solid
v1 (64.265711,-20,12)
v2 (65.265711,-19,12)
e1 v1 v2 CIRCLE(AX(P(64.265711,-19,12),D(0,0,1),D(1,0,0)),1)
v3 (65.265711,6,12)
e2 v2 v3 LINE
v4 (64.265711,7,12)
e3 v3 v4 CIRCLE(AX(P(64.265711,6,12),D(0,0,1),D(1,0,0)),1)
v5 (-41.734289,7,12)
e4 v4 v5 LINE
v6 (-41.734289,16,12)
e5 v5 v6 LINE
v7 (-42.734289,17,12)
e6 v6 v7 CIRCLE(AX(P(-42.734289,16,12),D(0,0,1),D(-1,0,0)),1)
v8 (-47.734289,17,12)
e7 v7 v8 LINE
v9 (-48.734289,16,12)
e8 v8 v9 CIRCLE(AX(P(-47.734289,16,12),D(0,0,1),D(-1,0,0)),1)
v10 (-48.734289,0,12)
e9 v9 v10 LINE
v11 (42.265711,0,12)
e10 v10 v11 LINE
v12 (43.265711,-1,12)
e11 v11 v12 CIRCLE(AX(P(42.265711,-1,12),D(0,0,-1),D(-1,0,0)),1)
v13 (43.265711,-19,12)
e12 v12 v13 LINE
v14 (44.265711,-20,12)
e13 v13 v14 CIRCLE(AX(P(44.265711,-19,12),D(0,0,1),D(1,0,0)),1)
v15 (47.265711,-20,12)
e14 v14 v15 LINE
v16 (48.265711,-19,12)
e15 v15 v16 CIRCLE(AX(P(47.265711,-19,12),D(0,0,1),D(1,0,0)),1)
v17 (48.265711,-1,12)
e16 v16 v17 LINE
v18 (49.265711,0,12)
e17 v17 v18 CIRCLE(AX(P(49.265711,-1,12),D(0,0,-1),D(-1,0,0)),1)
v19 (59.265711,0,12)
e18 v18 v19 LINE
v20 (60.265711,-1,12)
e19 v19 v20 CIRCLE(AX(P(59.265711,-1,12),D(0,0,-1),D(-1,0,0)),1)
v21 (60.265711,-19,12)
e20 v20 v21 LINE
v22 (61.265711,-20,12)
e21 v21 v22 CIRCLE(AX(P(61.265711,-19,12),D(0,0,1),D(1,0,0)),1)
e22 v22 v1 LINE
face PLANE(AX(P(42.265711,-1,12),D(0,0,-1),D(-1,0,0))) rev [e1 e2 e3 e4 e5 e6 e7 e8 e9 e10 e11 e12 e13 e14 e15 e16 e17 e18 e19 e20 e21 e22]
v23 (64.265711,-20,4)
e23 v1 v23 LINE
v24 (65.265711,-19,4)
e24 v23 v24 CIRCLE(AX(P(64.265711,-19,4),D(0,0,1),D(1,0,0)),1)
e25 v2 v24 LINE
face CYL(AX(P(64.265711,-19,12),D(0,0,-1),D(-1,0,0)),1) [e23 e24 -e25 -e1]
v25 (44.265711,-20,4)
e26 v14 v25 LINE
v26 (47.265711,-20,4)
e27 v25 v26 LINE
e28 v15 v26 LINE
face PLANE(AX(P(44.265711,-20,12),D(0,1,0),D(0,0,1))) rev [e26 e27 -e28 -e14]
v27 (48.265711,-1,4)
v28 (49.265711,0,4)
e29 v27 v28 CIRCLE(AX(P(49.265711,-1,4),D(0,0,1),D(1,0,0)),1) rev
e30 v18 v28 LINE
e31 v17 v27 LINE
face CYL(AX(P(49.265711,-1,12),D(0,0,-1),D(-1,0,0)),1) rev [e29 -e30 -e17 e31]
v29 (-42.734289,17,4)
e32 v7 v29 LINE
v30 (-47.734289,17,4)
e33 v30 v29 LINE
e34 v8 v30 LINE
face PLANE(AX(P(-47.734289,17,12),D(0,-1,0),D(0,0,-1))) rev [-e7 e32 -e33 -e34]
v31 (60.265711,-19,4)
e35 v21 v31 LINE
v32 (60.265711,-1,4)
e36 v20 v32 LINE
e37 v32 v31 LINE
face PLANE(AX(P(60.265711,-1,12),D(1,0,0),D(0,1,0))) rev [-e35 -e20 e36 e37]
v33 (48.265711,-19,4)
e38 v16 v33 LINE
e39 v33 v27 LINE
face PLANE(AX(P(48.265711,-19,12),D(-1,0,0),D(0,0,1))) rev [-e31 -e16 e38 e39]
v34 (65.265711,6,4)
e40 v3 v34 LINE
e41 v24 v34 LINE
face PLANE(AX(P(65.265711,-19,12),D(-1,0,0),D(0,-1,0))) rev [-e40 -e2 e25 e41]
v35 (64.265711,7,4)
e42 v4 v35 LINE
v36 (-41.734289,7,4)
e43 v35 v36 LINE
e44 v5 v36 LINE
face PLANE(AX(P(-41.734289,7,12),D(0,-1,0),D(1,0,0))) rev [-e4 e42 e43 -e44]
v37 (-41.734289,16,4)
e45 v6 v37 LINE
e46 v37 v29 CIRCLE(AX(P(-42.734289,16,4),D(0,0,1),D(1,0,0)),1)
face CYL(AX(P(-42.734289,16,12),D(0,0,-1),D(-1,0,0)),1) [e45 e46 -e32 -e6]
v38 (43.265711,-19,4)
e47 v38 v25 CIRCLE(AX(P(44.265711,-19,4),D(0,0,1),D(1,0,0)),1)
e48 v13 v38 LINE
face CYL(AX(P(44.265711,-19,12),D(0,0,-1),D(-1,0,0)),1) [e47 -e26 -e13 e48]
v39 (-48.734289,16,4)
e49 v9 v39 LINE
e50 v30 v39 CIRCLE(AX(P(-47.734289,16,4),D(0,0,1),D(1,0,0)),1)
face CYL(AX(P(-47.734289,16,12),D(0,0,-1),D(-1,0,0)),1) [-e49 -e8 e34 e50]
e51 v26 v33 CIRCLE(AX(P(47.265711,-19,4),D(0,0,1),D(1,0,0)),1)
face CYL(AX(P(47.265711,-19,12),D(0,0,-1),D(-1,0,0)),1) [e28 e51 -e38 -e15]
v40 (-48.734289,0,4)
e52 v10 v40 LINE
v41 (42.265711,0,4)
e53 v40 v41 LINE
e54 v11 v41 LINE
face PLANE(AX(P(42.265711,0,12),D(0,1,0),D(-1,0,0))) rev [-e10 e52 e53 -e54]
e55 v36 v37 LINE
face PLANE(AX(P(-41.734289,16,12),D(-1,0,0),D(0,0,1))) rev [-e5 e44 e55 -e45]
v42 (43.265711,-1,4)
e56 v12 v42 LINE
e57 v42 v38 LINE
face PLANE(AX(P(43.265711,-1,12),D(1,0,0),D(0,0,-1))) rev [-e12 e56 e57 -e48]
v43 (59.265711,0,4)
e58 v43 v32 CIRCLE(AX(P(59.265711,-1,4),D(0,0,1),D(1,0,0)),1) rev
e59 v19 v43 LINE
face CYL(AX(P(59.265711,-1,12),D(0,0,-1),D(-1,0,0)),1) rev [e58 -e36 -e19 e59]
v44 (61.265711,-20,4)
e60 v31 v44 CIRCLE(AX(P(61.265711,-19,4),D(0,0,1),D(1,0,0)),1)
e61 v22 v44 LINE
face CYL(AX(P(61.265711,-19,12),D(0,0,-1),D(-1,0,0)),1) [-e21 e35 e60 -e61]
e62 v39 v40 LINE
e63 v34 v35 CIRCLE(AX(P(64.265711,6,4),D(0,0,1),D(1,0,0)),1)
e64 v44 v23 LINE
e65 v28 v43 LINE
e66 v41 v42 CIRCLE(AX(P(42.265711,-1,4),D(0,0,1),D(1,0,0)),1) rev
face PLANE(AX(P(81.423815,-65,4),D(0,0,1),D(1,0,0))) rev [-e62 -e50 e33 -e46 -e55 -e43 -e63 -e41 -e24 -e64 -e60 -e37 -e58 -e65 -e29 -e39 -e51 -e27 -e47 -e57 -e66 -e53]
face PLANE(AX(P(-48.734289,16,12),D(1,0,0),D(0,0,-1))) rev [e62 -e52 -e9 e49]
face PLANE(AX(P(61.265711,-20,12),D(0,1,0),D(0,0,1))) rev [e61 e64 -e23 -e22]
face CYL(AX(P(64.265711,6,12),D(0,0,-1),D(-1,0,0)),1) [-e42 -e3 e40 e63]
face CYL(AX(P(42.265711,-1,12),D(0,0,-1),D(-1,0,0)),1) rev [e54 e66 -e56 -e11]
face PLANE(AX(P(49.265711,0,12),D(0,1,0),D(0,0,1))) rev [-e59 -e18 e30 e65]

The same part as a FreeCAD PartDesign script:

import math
import FreeCAD as App
import Part
import Sketcher


def add_polygon(sketch, points):
    """Adds a closed chain of lines whose ends are joined by coincident constraints."""
    first, n = sketch.GeometryCount, len(points)
    for a, b in zip(points, points[1:] + points[:1]):
        sketch.addGeometry(Part.LineSegment(App.Vector(*a, 0), App.Vector(*b, 0)), False)
    for i in range(n):
        sketch.addConstraint(Sketcher.Constraint("Coincident", first + i, 2, first + (i + 1) % n, 1))

doc = App.newDocument("Part")
params = doc.addObject("Spreadsheet::Sheet", "Params")
for row, (alias, value) in enumerate([
    ("sketch1_radius", "1 mm"),
    ("sketch1_width", "5 mm"),
    ("sketch1_width2", "91 mm"),
    ("sketch1_width3", "3 mm"),
    ("sketch1_width4", "10 mm"),
    ("pad1_length", "12 mm"),
    ("pocket1_length", "82 mm"),
], start=1):
    params.set(f"A{row}", alias)
    params.set(f"B{row}", "=" + value)
    params.setAlias(f"B{row}", alias)

body = doc.addObject("PartDesign::Body", "Body")

# Sketch on XY plane
sketch1 = body.newObject("Sketcher::SketchObject", "Sketch")
sketch1.AttachmentSupport = (doc.getObject("XY_Plane"), [""])
sketch1.MapMode = "FlatFace"
sketch1.addGeometry(Part.LineSegment(App.Vector(-42.734289, 17, 0), App.Vector(-47.734289, 17, 0)), False)
sketch1.addGeometry(Part.ArcOfCircle(Part.Circle(App.Vector(-47.734289, 16, 0), App.Vector(0, 0, 1), 1), math.radians(90), math.radians(180)), False)
sketch1.addGeometry(Part.LineSegment(App.Vector(-48.734289, 16, 0), App.Vector(-48.734289, 0, 0)), False)
sketch1.addGeometry(Part.LineSegment(App.Vector(-48.734289, 0, 0), App.Vector(42.265711, 0, 0)), False)
sketch1.addGeometry(Part.ArcOfCircle(Part.Circle(App.Vector(42.265711, -1, 0), App.Vector(0, 0, 1), 1), math.radians(0), math.radians(90)), False)
sketch1.addGeometry(Part.LineSegment(App.Vector(43.265711, -1, 0), App.Vector(43.265711, -19, 0)), False)
sketch1.addGeometry(Part.ArcOfCircle(Part.Circle(App.Vector(44.265711, -19, 0), App.Vector(0, 0, 1), 1), math.radians(-180), math.radians(-90)), False)
sketch1.addGeometry(Part.LineSegment(App.Vector(44.265711, -20, 0), App.Vector(47.265711, -20, 0)), False)
sketch1.addGeometry(Part.ArcOfCircle(Part.Circle(App.Vector(47.265711, -19, 0), App.Vector(0, 0, 1), 1), math.radians(-90), math.radians(0)), False)
sketch1.addGeometry(Part.LineSegment(App.Vector(48.265711, -19, 0), App.Vector(48.265711, -1, 0)), False)
sketch1.addGeometry(Part.ArcOfCircle(Part.Circle(App.Vector(49.265711, -1, 0), App.Vector(0, 0, 1), 1), math.radians(90), math.radians(180)), False)
sketch1.addGeometry(Part.LineSegment(App.Vector(49.265711, 0, 0), App.Vector(59.265711, 0, 0)), False)
sketch1.addGeometry(Part.ArcOfCircle(Part.Circle(App.Vector(59.265711, -1, 0), App.Vector(0, 0, 1), 1), math.radians(0), math.radians(90)), False)
sketch1.addGeometry(Part.LineSegment(App.Vector(60.265711, -1, 0), App.Vector(60.265711, -19, 0)), False)
sketch1.addGeometry(Part.ArcOfCircle(Part.Circle(App.Vector(61.265711, -19, 0), App.Vector(0, 0, 1), 1), math.radians(-180), math.radians(-90)), False)
sketch1.addGeometry(Part.LineSegment(App.Vector(61.265711, -20, 0), App.Vector(64.265711, -20, 0)), False)
sketch1.addGeometry(Part.ArcOfCircle(Part.Circle(App.Vector(64.265711, -19, 0), App.Vector(0, 0, 1), 1), math.radians(-90), math.radians(0)), False)
sketch1.addGeometry(Part.LineSegment(App.Vector(65.265711, -19, 0), App.Vector(65.265711, 6, 0)), False)
sketch1.addGeometry(Part.ArcOfCircle(Part.Circle(App.Vector(64.265711, 6, 0), App.Vector(0, 0, 1), 1), math.radians(0), math.radians(90)), False)
sketch1.addGeometry(Part.LineSegment(App.Vector(64.265711, 7, 0), App.Vector(-41.734289, 7, 0)), False)
sketch1.addGeometry(Part.LineSegment(App.Vector(-41.734289, 7, 0), App.Vector(-41.734289, 16, 0)), False)
sketch1.addGeometry(Part.ArcOfCircle(Part.Circle(App.Vector(-42.734289, 16, 0), App.Vector(0, 0, 1), 1), math.radians(0), math.radians(90)), False)
sketch1.addConstraint(Sketcher.Constraint("Tangent", 0, 2, 1, 1))
sketch1.addConstraint(Sketcher.Constraint("Tangent", 1, 2, 2, 1))
sketch1.addConstraint(Sketcher.Constraint("Coincident", 2, 2, 3, 1))
sketch1.addConstraint(Sketcher.Constraint("Tangent", 3, 2, 4, 2))
sketch1.addConstraint(Sketcher.Constraint("Tangent", 4, 1, 5, 1))
sketch1.addConstraint(Sketcher.Constraint("Tangent", 5, 2, 6, 1))
sketch1.addConstraint(Sketcher.Constraint("Tangent", 6, 2, 7, 1))
sketch1.addConstraint(Sketcher.Constraint("Tangent", 7, 2, 8, 1))
sketch1.addConstraint(Sketcher.Constraint("Tangent", 8, 2, 9, 1))
sketch1.addConstraint(Sketcher.Constraint("Tangent", 9, 2, 10, 2))
sketch1.addConstraint(Sketcher.Constraint("Tangent", 10, 1, 11, 1))
sketch1.addConstraint(Sketcher.Constraint("Tangent", 11, 2, 12, 2))
sketch1.addConstraint(Sketcher.Constraint("Tangent", 12, 1, 13, 1))
sketch1.addConstraint(Sketcher.Constraint("Tangent", 13, 2, 14, 1))
sketch1.addConstraint(Sketcher.Constraint("Tangent", 14, 2, 15, 1))
sketch1.addConstraint(Sketcher.Constraint("Tangent", 15, 2, 16, 1))
sketch1.addConstraint(Sketcher.Constraint("Tangent", 16, 2, 17, 1))
sketch1.addConstraint(Sketcher.Constraint("Tangent", 17, 2, 18, 1))
sketch1.addConstraint(Sketcher.Constraint("Tangent", 18, 2, 19, 1))
sketch1.addConstraint(Sketcher.Constraint("Coincident", 19, 2, 20, 1))
sketch1.addConstraint(Sketcher.Constraint("Tangent", 20, 2, 21, 1))
sketch1.addConstraint(Sketcher.Constraint("Tangent", 21, 2, 0, 1))
sketch1.addConstraint(Sketcher.Constraint("Horizontal", 0))
sketch1.addConstraint(Sketcher.Constraint("Vertical", 2))
sketch1.addConstraint(Sketcher.Constraint("Horizontal", 3))
sketch1.addConstraint(Sketcher.Constraint("Vertical", 5))
sketch1.addConstraint(Sketcher.Constraint("Horizontal", 7))
sketch1.addConstraint(Sketcher.Constraint("Vertical", 9))
sketch1.addConstraint(Sketcher.Constraint("Horizontal", 11))
sketch1.addConstraint(Sketcher.Constraint("Vertical", 13))
sketch1.addConstraint(Sketcher.Constraint("Horizontal", 15))
sketch1.addConstraint(Sketcher.Constraint("Vertical", 17))
sketch1.addConstraint(Sketcher.Constraint("Horizontal", 19))
sketch1.addConstraint(Sketcher.Constraint("Vertical", 20))
sketch1.addConstraint(Sketcher.Constraint("Equal", 1, 4))
sketch1.addConstraint(Sketcher.Constraint("Equal", 4, 6))
sketch1.addConstraint(Sketcher.Constraint("Equal", 6, 8))
sketch1.addConstraint(Sketcher.Constraint("Equal", 8, 10))
sketch1.addConstraint(Sketcher.Constraint("Equal", 10, 12))
sketch1.addConstraint(Sketcher.Constraint("Equal", 12, 14))
sketch1.addConstraint(Sketcher.Constraint("Equal", 14, 16))
sketch1.addConstraint(Sketcher.Constraint("Equal", 16, 18))
sketch1.addConstraint(Sketcher.Constraint("Equal", 18, 21))
sketch1.addConstraint(Sketcher.Constraint("PointOnObject", 2, 2, -1))
sketch1.addConstraint(Sketcher.Constraint("PointOnObject", 10, 1, -1))
sketch1.addConstraint(Sketcher.Constraint("Horizontal", 8, 3, 14, 3))
sketch1.addConstraint(Sketcher.Constraint("Equal", 7, 15))
sketch1.addConstraint(Sketcher.Constraint("Radius", 1, 1.0))
sketch1.addConstraint(Sketcher.Constraint("DistanceX", 0, 2, 0, 1, 5.0))
sketch1.addConstraint(Sketcher.Constraint("DistanceX", 3, 1, 3, 2, 91.0))
sketch1.addConstraint(Sketcher.Constraint("DistanceX", 7, 1, 7, 2, 3.0))
sketch1.addConstraint(Sketcher.Constraint("DistanceX", 11, 1, 11, 2, 10.0))
sketch1.addConstraint(Sketcher.Constraint("DistanceY", 2, 2, 2, 1, 16.0))
sketch1.addConstraint(Sketcher.Constraint("DistanceY", 5, 2, 5, 1, 18.0))
sketch1.addConstraint(Sketcher.Constraint("DistanceY", 17, 1, 17, 2, 25.0))
sketch1.addConstraint(Sketcher.Constraint("DistanceX", 1, 3, -1, 1, 47.734289))
sketch1.setExpression("Constraints[47]", "Params.sketch1_radius")
sketch1.setExpression("Constraints[48]", "Params.sketch1_width")
sketch1.setExpression("Constraints[49]", "Params.sketch1_width2")
sketch1.setExpression("Constraints[50]", "Params.sketch1_width3")
sketch1.setExpression("Constraints[51]", "Params.sketch1_width4")
pad1 = body.newObject("PartDesign::Pad", "Pad")
pad1.Profile = sketch1
pad1.setExpression("Length", "Params.pad1_length")

# Sketch on XZ plane
sketch2 = body.newObject("Sketcher::SketchObject", "Sketch001")
sketch2.AttachmentSupport = (doc.getObject("XZ_Plane"), [""])
sketch2.MapMode = "FlatFace"
sketch2.AttachmentOffset = App.Placement(App.Vector(0, 0, -17), App.Rotation())
add_polygon(sketch2, [(-154.472855, 4), (81.423815, 4), (92.957475, -29.235712), (-146.348767, -32.606222)])  # lines 0-3
add_polygon(sketch2, [(81.423815, 16), (-154.472855, 16), (-172.112105, 50.666367), (103.309757, 54.545548)])  # lines 4-7
sketch2.addConstraint(Sketcher.Constraint("Horizontal", 0))
sketch2.addConstraint(Sketcher.Constraint("Horizontal", 4))
sketch2.addConstraint(Sketcher.Constraint("Parallel", 2, 6))
sketch2.addConstraint(Sketcher.Constraint("Vertical", 3, 2, 4, 2))
sketch2.addConstraint(Sketcher.Constraint("Vertical", 0, 2, 7, 2))
sketch2.addConstraint(Sketcher.Constraint("DistanceY", -1, 1, 0, 2, 4.0))
sketch2.addConstraint(Sketcher.Constraint("DistanceY", -1, 1, 4, 2, 16.0))
sketch2.addConstraint(Sketcher.Constraint("DistanceX", 0, 1, 0, 2, 235.89667))
sketch2.addConstraint(Sketcher.Constraint("Distance", 6, 275.449178))
sketch2.addConstraint(Sketcher.Constraint("DistanceY", 1, 2, -1, 1, 29.235712))
sketch2.addConstraint(Sketcher.Constraint("DistanceX", 0, 2, 1, 2, 11.53366))
sketch2.addConstraint(Sketcher.Constraint("DistanceX", 2, 2, 0, 2, 227.772582))
sketch2.addConstraint(Sketcher.Constraint("DistanceY", 2, 2, 1, 2, 3.37051))
sketch2.addConstraint(Sketcher.Constraint("DistanceX", 5, 2, 4, 2, 17.63925))
sketch2.addConstraint(Sketcher.Constraint("DistanceY", 2, 2, 5, 2, 83.272589))
sketch2.addConstraint(Sketcher.Constraint("DistanceX", -1, 1, 0, 2, 81.423815))
pocket1 = body.newObject("PartDesign::Pocket", "Pocket")
pocket1.Profile = sketch2
pocket1.setExpression("Length", "Params.pocket1_length")
pocket1.Reversed = True

doc.recompute()
